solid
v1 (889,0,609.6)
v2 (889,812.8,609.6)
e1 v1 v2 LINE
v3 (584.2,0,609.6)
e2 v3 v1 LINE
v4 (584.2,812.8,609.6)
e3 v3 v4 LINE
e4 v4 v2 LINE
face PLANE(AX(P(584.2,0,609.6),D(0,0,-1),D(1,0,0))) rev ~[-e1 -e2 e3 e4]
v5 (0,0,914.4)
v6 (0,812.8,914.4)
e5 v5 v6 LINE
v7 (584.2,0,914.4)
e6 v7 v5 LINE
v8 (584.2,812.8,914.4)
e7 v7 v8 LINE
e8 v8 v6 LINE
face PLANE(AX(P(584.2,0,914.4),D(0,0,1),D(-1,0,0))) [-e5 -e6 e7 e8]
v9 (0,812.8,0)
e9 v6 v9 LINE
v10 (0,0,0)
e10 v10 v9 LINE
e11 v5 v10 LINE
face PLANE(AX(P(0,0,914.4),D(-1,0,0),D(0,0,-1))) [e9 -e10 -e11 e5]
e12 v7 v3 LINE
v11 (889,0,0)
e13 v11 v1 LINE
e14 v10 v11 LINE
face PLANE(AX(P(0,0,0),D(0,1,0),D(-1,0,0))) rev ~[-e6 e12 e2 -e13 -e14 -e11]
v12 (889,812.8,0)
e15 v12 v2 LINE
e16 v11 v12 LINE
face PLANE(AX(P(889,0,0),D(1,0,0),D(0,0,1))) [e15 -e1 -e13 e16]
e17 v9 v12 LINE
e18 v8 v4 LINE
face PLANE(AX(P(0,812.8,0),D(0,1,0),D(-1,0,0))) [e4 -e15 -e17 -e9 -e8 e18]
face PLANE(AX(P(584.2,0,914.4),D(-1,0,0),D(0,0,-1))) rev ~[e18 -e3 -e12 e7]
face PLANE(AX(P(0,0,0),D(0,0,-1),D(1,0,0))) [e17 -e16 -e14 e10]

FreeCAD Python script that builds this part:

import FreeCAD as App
import Part
import Sketcher
from FreeCAD import Vector
Q = App.Units.Quantity


def add_polygon(sketch, points):
    """Adds a closed chain of lines whose ends are joined by coincident constraints."""
    first, n = sketch.GeometryCount, len(points)
    for a, b in zip(points, points[1:] + points[:1]):
        sketch.addGeometry(Part.LineSegment(App.Vector(*a, 0), App.Vector(*b, 0)), False)
    for i in range(n):
        sketch.addConstraint(Sketcher.Constraint("Coincident", first + i, 2, first + (i + 1) % n, 1))

doc = App.newDocument("Part")
body = doc.addObject("PartDesign::Body", "Body")

sketch1 = body.newObject("Sketcher::SketchObject", "Sketch")
sketch1.AttachmentSupport = (doc.getObject("XZ_Plane"), [""])
sketch1.MapMode = "FlatFace"
add_polygon(sketch1, [(889, 0), (0, 0), (0, 914.4), (584.2, 914.4), (584.2, 609.6), (889, 609.6)])
sketch1.addConstraint(Sketcher.Constraint("Horizontal", 0))
sketch1.addConstraint(Sketcher.Constraint("Vertical", 1))
sketch1.addConstraint(Sketcher.Constraint("Horizontal", 2))
sketch1.addConstraint(Sketcher.Constraint("Vertical", 3))
sketch1.addConstraint(Sketcher.Constraint("Horizontal", 4))
sketch1.addConstraint(Sketcher.Constraint("Vertical", 5))
sketch1.addConstraint(Sketcher.Constraint("Coincident", 0, 2, -1, 1))
sketch1.addConstraint(Sketcher.Constraint("Equal", 4, 3))
sketch1.addConstraint(Sketcher.Constraint("DistanceX", 0, 2, 0, 1, Q("35 in")))
sketch1.addConstraint(Sketcher.Constraint("DistanceX", 2, 1, 2, 2, Q("23 in")))
sketch1.addConstraint(Sketcher.Constraint("DistanceY", 1, 1, 1, 2, Q("36 in")))
pad1 = body.newObject("PartDesign::Pad", "Pad")
pad1.Profile = sketch1
pad1.Length = Q("32 in")
pad1.Reversed = True

doc.recompute()
